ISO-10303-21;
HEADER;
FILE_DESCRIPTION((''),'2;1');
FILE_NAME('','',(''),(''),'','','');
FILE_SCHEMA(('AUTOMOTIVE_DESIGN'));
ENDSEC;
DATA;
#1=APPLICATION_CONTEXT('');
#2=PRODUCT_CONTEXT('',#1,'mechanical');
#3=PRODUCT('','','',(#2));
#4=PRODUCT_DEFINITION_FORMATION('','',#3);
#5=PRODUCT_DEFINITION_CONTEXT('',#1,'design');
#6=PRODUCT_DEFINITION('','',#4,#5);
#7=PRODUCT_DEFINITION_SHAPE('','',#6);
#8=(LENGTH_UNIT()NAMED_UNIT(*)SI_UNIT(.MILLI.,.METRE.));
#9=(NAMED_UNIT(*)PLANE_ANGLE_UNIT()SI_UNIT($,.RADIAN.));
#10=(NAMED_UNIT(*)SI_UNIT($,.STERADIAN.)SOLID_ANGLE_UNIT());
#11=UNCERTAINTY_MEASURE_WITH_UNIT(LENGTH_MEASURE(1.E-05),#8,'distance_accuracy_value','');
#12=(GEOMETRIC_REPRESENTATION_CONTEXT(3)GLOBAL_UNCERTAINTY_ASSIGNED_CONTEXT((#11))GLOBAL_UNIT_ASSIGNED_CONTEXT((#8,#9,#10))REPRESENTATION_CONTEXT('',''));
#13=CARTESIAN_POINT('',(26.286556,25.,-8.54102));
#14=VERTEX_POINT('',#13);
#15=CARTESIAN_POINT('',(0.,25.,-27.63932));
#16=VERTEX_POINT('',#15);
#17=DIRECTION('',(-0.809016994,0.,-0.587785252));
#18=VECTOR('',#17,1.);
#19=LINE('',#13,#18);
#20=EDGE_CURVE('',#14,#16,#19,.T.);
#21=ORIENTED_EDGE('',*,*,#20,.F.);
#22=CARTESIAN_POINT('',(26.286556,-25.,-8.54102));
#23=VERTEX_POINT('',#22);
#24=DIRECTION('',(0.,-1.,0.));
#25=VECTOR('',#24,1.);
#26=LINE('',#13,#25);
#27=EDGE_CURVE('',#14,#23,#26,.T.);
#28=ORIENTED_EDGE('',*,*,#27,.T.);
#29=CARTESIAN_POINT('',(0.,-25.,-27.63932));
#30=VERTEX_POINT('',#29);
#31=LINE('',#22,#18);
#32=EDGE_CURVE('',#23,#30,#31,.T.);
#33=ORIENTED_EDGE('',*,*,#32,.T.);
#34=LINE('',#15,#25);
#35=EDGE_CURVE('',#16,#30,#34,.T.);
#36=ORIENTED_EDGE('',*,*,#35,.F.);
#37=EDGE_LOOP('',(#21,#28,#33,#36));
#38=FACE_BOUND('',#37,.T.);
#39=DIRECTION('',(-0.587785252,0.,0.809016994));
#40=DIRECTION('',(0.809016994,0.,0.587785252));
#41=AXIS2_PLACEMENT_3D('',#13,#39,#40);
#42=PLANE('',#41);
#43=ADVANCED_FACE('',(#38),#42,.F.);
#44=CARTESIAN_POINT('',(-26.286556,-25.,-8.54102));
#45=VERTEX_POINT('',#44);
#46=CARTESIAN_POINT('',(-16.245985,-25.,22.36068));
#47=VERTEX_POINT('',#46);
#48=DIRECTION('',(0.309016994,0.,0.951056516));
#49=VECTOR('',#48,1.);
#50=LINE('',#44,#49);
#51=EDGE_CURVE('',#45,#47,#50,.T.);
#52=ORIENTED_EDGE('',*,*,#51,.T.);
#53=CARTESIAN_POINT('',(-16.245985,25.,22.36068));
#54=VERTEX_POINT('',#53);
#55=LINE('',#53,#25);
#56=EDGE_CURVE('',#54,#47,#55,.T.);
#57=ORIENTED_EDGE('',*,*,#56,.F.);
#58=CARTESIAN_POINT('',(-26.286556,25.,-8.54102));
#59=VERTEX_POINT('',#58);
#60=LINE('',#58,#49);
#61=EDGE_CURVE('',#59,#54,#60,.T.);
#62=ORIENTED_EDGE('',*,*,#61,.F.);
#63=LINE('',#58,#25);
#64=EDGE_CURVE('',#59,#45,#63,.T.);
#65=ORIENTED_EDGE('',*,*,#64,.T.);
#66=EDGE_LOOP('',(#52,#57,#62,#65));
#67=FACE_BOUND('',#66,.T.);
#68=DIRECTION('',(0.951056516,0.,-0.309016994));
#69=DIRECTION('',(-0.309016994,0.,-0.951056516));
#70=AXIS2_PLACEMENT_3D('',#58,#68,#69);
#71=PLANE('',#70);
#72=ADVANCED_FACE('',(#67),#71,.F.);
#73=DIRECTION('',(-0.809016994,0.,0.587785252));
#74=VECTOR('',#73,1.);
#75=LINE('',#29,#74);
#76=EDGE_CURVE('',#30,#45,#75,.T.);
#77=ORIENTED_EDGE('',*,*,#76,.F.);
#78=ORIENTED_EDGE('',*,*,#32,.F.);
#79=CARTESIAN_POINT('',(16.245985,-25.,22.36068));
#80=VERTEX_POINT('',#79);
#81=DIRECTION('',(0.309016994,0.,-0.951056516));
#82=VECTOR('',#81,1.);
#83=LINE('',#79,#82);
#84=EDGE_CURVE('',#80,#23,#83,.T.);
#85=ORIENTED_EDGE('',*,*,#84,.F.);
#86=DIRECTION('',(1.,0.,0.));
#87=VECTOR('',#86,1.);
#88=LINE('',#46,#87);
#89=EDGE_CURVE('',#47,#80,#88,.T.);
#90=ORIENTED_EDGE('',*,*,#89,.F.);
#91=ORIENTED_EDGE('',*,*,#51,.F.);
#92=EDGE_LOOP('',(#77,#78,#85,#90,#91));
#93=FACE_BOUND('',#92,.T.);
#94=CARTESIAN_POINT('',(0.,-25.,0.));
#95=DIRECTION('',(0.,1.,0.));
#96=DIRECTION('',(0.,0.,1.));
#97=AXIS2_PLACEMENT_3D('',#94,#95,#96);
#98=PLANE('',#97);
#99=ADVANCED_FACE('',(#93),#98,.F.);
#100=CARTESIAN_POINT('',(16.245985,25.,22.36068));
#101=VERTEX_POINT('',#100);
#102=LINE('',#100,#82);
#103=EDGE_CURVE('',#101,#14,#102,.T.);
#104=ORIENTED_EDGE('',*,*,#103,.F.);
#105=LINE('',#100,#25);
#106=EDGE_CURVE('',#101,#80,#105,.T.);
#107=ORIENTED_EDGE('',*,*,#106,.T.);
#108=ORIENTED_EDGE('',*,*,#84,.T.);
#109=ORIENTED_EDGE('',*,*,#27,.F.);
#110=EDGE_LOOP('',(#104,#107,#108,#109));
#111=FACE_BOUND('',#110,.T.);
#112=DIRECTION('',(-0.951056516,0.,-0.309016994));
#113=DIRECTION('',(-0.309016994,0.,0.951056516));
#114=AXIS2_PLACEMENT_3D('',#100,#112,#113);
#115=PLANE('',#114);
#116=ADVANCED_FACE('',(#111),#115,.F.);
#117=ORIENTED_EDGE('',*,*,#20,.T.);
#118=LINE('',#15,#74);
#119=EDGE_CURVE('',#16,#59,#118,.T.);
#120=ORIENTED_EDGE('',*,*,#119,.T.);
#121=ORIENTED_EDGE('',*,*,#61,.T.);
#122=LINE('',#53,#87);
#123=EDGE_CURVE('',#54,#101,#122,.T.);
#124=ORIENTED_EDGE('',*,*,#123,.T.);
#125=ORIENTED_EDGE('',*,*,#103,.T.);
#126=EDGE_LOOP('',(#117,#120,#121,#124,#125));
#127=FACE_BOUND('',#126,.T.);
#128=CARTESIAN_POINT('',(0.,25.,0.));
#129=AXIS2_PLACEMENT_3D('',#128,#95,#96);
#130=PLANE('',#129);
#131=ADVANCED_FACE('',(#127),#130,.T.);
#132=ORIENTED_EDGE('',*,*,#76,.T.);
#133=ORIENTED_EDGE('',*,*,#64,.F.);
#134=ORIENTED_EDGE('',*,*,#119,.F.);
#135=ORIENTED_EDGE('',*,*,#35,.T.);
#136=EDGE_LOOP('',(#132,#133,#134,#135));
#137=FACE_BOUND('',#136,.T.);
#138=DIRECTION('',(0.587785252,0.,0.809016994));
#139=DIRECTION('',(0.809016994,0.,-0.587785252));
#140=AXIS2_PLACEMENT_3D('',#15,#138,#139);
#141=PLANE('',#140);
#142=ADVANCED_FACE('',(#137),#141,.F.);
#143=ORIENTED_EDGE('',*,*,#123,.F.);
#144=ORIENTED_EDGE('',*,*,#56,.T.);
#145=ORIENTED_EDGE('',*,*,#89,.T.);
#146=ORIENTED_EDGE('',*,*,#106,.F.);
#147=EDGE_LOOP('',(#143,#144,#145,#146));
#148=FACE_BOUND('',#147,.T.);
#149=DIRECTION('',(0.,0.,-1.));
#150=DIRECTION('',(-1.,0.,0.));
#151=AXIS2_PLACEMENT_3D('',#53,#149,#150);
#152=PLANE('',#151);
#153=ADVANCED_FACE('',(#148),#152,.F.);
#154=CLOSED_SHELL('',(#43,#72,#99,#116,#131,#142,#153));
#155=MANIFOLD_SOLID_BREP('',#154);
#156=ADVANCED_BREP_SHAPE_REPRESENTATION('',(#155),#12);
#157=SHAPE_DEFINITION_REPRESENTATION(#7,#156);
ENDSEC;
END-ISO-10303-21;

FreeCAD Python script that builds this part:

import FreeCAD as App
import Part
import Sketcher
Q = App.Units.Quantity

doc = App.newDocument("Part")
body = doc.addObject("PartDesign::Body", "Body")

sketch1 = doc.addObject("Sketcher::SketchObject", "Sketch")
body.addObject(sketch1)
sketch1.AttachmentSupport = (doc.XZ_Plane, [""])
sketch1.MapMode = "FlatFace"
sketch1.addGeometry(Part.LineSegment(App.Vector(-26, -9, 0), App.Vector(-16, 22, 0)), False)
sketch1.addGeometry(Part.LineSegment(App.Vector(-16, 22, 0), App.Vector(16, 22, 0)), False)
sketch1.addGeometry(Part.LineSegment(App.Vector(16, 22, 0), App.Vector(26, -9, 0)), False)
sketch1.addGeometry(Part.LineSegment(App.Vector(26, -9, 0), App.Vector(0, -28, 0)), False)
sketch1.addGeometry(Part.LineSegment(App.Vector(0, -28, 0), App.Vector(-26, -9, 0)), False)
sketch1.addConstraint(Sketcher.Constraint("Coincident", 0, 2, 1, 1))
sketch1.addConstraint(Sketcher.Constraint("Coincident", 1, 2, 2, 1))
sketch1.addConstraint(Sketcher.Constraint("Coincident", 2, 2, 3, 1))
sketch1.addConstraint(Sketcher.Constraint("Coincident", 3, 2, 4, 1))
sketch1.addConstraint(Sketcher.Constraint("Coincident", 4, 2, 0, 1))
sketch1.addConstraint(Sketcher.Constraint("Horizontal", 1))
sketch1.addConstraint(Sketcher.Constraint("Symmetric", 2, 2, 4, 2, -2))
sketch1.addConstraint(Sketcher.Constraint("PointOnObject", 3, 2, -2))
sketch1.addConstraint(Sketcher.Constraint("Equal", 0, 2))
sketch1.addConstraint(Sketcher.Constraint("Equal", 2, 3))
sketch1.addConstraint(Sketcher.Constraint("Angle", 0, Q("72 deg")))
sketch1.addConstraint(Sketcher.Constraint("Angle", 3, Q("-144 deg")))
sketch1.addConstraint(Sketcher.Constraint("DistanceY", 3, 2, 0, 2, Q("50 mm")))
sketch1.addConstraint(Sketcher.Constraint("DistanceY", -1, 1, 0, 2, Q("22.36068 mm")))
pad1 = doc.addObject("PartDesign::Pad", "Pad")
body.addObject(pad1)
pad1.Profile = sketch1
pad1.Length = 50
pad1.Midplane = True

doc.recompute()
